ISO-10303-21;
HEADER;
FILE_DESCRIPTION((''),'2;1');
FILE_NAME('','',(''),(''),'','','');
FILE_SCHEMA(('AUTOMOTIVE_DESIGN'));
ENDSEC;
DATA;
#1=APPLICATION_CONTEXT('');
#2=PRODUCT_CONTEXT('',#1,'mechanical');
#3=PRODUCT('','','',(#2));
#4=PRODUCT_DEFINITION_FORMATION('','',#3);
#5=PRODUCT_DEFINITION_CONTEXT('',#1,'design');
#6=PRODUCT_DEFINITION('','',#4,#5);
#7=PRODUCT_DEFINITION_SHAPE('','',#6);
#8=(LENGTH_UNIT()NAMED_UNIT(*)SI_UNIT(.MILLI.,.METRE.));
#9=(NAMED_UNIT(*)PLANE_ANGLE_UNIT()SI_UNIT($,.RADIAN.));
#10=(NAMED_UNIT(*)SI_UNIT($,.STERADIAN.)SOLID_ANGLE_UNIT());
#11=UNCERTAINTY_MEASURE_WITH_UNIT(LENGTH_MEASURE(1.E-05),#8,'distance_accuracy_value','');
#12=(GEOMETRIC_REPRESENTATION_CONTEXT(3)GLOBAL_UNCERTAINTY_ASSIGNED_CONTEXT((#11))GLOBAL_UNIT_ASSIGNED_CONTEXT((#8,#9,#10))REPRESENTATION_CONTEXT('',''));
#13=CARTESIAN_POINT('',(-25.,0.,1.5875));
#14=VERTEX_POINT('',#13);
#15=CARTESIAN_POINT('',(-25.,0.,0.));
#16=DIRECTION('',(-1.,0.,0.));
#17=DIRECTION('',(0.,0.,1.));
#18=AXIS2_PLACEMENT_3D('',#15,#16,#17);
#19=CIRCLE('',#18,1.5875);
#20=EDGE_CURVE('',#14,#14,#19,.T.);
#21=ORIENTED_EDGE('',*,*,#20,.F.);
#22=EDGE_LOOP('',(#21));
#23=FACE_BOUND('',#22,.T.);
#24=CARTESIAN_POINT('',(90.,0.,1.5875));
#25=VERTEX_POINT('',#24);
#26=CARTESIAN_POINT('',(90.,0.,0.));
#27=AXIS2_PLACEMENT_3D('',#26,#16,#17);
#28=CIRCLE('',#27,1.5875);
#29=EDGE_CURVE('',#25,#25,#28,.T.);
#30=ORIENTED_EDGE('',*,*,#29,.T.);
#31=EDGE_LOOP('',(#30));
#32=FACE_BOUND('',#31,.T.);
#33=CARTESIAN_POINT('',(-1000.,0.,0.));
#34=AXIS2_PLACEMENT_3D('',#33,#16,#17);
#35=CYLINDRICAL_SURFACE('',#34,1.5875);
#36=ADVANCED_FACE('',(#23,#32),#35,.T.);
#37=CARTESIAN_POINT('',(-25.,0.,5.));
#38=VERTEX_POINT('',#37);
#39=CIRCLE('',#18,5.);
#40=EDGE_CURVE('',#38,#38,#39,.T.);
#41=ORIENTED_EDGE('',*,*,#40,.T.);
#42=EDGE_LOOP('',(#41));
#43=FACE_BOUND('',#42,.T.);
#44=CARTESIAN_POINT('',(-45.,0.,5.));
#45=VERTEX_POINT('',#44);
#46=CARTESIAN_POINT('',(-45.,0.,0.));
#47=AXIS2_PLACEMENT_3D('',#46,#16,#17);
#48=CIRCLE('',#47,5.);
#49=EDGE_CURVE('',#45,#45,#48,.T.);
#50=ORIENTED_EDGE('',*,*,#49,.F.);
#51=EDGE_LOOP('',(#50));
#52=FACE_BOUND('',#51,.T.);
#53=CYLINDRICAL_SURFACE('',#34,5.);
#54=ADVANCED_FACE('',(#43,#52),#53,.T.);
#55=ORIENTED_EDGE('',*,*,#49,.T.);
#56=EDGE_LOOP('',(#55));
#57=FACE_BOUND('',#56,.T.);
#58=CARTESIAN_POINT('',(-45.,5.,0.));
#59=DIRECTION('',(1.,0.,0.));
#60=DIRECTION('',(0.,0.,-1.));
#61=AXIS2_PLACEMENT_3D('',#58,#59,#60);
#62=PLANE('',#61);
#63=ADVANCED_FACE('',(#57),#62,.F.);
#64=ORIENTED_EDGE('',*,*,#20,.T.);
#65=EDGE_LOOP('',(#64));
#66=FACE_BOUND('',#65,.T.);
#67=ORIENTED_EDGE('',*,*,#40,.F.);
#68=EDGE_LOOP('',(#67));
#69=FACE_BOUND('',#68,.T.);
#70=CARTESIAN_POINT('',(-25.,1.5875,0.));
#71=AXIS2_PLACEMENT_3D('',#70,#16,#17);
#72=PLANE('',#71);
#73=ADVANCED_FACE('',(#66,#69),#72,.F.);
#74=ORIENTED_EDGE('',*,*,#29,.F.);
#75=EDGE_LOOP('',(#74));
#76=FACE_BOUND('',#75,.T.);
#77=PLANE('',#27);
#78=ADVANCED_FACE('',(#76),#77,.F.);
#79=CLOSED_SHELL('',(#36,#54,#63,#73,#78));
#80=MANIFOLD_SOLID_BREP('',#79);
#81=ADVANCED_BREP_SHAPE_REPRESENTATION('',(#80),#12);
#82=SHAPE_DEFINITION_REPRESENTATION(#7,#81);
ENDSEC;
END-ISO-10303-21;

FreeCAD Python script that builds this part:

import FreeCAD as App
import Part
import Sketcher

V = App.Vector


def add_polygon(sketch, points):
    """Adds a closed chain of lines whose ends are joined by coincident constraints."""
    first, n = sketch.GeometryCount, len(points)
    for a, b in zip(points, points[1:] + points[:1]):
        sketch.addGeometry(Part.LineSegment(App.Vector(*a, 0), App.Vector(*b, 0)), False)
    for i in range(n):
        sketch.addConstraint(Sketcher.Constraint("Coincident", first + i, 2, first + (i + 1) % n, 1))

doc = App.newDocument("Part")
body = doc.addObject("PartDesign::Body", "Body")

sketch1 = body.newObject("Sketcher::SketchObject", "Sketch")
sketch1.AttachmentSupport = (doc.getObject("XY_Plane"), [""])
sketch1.MapMode = "FlatFace"
add_polygon(sketch1, [(90, 0), (90, 1.6), (-25, 1.6), (-25, 5), (-45, 5), (-45, 0)])
sketch1.addConstraint([
    Sketcher.Constraint("Vertical", 0),
    Sketcher.Constraint("Horizontal", 1),
    Sketcher.Constraint("Vertical", 2),
    Sketcher.Constraint("Horizontal", 3),
    Sketcher.Constraint("Vertical", 4),
    Sketcher.Constraint("Horizontal", 5),
    Sketcher.Constraint("PointOnObject", 4, 2, -1),
    Sketcher.Constraint("DistanceX", 1, 2, 1, 1, 115.0),
    Sketcher.Constraint("DistanceX", 3, 2, 3, 1, 20.0),
    Sketcher.Constraint("DistanceY", 4, 2, 4, 1, 5.0),
    Sketcher.Constraint("DistanceX", -1, 1, 0, 2, 90.0),
    Sketcher.Constraint("DistanceY", 0, 1, 0, 2, 1.5875),
])
revolution = body.newObject("PartDesign::Revolution", "Revolution")
revolution.Profile = sketch1
revolution.ReferenceAxis = (sketch1, ["H_Axis"])
revolution.Angle = 360

doc.recompute()
